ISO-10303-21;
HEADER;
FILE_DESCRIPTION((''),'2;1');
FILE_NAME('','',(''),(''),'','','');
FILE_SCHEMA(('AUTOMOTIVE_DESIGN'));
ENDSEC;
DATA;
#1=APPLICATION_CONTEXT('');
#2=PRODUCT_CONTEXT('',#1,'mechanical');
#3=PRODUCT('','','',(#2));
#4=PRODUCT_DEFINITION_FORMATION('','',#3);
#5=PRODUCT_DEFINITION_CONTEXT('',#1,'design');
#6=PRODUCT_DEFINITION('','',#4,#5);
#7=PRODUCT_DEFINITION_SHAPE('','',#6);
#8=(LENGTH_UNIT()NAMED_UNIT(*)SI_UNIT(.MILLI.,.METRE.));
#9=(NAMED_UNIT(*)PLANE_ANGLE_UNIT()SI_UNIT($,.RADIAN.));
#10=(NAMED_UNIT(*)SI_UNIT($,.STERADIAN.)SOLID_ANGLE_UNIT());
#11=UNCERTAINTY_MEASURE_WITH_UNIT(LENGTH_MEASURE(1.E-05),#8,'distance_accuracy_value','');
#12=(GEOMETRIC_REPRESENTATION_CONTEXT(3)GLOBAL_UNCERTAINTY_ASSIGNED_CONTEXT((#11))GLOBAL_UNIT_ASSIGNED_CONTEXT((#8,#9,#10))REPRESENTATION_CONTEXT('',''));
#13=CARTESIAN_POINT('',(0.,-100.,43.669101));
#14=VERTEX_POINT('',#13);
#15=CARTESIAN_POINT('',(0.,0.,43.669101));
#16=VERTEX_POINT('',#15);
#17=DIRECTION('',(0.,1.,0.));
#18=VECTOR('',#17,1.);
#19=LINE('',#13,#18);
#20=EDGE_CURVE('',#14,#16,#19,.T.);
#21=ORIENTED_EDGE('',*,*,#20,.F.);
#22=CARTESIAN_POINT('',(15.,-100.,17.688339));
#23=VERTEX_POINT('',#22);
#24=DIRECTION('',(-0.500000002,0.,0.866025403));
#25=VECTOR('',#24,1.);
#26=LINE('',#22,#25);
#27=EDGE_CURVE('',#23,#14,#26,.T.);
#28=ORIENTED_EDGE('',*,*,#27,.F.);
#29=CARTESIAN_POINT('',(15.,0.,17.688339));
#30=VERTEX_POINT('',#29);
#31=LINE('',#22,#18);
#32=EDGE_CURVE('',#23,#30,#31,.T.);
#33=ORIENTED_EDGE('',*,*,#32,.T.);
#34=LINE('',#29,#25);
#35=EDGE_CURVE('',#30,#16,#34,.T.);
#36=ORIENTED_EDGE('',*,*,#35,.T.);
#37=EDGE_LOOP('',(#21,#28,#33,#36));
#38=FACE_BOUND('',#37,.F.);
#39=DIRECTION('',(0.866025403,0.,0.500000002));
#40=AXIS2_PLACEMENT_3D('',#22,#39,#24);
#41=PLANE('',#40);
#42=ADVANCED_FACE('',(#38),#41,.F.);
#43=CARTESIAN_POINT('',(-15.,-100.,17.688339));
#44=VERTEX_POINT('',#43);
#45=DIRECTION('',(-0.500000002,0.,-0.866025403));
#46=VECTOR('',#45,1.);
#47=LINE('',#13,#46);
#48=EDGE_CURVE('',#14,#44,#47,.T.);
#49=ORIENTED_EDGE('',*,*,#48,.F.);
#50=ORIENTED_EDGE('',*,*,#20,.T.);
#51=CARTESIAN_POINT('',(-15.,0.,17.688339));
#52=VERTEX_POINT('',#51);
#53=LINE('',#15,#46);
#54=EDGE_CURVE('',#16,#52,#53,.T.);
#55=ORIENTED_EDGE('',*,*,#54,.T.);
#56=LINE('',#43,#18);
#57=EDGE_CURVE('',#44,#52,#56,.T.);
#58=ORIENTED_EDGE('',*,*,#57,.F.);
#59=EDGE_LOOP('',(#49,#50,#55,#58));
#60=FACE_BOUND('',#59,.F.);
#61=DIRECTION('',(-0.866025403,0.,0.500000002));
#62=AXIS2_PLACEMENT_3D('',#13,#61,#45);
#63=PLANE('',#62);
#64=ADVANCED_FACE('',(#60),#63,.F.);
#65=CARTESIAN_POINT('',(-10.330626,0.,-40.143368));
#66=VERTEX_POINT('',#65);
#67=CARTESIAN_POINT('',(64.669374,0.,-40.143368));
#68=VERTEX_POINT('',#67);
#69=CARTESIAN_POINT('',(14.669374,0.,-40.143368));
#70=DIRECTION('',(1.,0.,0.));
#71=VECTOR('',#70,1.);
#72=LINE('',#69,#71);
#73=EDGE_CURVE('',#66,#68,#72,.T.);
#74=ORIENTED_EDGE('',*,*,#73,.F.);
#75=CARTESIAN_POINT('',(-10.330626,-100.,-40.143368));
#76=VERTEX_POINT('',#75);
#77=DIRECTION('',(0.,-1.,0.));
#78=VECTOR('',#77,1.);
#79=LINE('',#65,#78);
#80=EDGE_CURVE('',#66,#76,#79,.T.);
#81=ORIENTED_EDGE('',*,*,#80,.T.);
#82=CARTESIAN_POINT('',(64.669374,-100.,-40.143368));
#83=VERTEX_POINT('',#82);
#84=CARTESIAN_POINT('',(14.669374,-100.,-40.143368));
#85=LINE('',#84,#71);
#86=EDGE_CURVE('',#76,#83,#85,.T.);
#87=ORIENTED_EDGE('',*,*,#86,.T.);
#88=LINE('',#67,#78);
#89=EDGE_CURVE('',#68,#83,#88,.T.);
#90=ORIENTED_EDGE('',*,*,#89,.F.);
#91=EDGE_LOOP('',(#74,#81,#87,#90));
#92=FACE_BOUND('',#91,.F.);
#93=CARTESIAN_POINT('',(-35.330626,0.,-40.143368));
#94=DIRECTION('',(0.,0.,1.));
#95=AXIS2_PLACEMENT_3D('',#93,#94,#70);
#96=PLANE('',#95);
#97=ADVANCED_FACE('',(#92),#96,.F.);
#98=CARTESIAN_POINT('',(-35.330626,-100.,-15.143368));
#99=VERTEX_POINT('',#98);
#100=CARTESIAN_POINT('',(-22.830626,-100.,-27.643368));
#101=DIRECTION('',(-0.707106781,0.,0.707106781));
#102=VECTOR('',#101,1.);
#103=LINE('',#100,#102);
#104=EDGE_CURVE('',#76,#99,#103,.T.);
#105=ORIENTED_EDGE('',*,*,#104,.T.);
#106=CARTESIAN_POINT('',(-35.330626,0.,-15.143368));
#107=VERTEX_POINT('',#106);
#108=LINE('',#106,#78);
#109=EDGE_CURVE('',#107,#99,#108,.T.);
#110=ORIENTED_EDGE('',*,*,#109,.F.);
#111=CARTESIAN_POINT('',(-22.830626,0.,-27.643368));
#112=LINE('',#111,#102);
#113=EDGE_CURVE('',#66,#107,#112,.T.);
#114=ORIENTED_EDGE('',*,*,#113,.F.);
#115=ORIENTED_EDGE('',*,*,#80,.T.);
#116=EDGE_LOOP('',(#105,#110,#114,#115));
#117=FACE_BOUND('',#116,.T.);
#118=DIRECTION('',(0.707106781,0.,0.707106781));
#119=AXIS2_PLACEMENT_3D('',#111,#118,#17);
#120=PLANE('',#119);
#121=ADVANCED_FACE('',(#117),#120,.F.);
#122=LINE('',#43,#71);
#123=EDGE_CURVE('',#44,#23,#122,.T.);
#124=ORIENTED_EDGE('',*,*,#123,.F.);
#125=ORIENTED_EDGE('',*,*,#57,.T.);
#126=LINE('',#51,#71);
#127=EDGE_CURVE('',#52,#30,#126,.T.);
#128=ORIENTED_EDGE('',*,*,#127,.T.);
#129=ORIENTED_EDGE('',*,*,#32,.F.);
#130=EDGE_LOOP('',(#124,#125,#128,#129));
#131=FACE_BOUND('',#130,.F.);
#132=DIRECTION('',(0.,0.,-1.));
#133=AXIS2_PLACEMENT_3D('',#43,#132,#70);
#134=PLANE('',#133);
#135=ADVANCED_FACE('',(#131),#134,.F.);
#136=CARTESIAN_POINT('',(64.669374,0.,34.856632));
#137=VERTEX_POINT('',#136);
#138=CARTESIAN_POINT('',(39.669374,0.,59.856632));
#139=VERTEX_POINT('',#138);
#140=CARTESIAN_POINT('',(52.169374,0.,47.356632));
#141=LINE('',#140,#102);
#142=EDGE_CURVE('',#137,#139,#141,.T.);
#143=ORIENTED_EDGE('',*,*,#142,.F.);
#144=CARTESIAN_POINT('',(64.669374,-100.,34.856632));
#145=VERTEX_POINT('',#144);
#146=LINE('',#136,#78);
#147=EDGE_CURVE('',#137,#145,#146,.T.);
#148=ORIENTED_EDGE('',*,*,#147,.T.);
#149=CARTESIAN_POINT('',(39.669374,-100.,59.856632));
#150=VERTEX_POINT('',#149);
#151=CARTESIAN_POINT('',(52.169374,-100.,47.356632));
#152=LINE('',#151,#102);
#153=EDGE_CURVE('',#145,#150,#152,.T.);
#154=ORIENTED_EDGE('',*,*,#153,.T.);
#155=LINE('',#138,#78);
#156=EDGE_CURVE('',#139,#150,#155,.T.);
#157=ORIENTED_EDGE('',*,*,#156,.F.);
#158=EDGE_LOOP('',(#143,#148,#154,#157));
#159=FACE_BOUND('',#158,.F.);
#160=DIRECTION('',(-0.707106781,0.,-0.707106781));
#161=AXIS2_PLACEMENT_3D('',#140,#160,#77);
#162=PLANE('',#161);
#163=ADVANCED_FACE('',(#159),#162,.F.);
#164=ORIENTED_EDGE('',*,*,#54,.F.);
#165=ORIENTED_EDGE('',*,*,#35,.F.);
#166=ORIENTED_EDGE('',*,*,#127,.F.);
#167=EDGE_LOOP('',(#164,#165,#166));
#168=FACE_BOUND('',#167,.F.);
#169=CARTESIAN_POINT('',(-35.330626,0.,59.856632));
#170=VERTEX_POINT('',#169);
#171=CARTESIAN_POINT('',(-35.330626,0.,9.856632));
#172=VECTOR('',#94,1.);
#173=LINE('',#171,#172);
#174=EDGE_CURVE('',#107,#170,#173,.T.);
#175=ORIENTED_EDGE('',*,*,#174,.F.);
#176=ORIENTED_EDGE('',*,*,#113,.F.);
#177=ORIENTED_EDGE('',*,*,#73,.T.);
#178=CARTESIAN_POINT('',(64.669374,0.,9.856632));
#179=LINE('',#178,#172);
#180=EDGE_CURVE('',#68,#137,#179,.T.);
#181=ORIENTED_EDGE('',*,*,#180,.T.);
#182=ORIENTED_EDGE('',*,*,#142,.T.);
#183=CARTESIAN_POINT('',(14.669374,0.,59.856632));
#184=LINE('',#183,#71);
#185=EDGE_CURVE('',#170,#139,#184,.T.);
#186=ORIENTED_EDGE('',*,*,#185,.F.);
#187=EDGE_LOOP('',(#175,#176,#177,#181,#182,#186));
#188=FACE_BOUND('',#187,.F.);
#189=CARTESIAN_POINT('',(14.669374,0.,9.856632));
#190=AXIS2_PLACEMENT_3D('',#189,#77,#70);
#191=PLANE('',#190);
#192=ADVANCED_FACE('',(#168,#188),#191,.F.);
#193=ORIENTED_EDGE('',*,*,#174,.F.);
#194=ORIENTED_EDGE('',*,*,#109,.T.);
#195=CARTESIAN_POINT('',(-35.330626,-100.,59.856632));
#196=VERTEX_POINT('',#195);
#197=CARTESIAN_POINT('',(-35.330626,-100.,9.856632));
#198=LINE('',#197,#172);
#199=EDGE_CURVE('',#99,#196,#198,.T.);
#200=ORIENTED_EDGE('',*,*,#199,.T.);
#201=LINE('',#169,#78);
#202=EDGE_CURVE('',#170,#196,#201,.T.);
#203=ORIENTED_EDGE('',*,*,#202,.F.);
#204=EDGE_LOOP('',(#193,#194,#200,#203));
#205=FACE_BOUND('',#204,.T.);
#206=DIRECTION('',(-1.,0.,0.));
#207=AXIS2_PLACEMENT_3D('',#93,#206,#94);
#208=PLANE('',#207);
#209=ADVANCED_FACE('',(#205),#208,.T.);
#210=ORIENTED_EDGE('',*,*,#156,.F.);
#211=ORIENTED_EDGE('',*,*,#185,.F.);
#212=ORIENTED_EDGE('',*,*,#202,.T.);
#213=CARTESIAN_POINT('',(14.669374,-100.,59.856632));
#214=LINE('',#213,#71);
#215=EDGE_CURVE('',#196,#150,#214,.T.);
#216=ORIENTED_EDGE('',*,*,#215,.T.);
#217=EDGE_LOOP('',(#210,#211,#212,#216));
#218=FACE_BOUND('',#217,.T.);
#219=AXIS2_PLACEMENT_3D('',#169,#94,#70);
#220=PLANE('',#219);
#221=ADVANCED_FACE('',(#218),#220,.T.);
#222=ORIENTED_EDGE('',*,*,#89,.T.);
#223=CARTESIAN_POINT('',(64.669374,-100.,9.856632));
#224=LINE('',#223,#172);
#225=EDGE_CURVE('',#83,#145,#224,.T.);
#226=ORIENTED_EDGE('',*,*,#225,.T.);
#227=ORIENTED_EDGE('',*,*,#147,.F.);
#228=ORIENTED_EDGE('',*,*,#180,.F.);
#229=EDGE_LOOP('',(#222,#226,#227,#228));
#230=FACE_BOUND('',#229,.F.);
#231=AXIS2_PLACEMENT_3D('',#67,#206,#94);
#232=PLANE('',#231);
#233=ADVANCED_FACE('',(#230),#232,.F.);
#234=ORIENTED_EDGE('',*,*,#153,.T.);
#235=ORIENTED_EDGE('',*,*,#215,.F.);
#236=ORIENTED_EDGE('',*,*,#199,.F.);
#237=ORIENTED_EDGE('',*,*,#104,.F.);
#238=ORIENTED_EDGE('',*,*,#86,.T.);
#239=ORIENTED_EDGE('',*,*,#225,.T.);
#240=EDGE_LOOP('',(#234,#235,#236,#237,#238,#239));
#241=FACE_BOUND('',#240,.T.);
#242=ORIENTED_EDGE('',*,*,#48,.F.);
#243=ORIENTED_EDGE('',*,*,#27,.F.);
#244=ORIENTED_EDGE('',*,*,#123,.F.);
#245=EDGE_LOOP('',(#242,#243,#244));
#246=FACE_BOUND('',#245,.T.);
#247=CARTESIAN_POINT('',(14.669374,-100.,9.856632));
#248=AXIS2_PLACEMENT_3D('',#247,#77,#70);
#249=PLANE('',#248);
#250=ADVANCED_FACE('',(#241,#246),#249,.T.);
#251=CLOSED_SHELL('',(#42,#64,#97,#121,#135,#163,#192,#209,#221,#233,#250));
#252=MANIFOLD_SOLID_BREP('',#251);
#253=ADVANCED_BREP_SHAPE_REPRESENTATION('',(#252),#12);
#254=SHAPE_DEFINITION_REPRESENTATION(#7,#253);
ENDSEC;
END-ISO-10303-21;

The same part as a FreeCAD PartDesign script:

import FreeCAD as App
import Part
import Sketcher

V = App.Vector
Q = App.Units.Quantity


def edges_at(feature, points):
    """Names of the edges that pass closest to the given points."""
    edges = feature.Shape.Edges
    near = lambda p: min(range(len(edges)), key=lambda i: edges[i].distToShape(Part.Vertex(*p))[0])
    return sorted({f"Edge{near(p) + 1}" for p in points})


def add_polygon(sketch, points):
    """Adds a closed chain of lines whose ends are joined by coincident constraints."""
    first, n = sketch.GeometryCount, len(points)
    for a, b in zip(points, points[1:] + points[:1]):
        sketch.addGeometry(Part.LineSegment(App.Vector(*a, 0), App.Vector(*b, 0)), False)
    for i in range(n):
        sketch.addConstraint(Sketcher.Constraint("Coincident", first + i, 2, first + (i + 1) % n, 1))

doc = App.newDocument("Part")
body = doc.addObject("PartDesign::Body", "Body")

# Sketch on XZ plane
sketch1 = doc.addObject("Sketcher::SketchObject", "Sketch")
body.addObject(sketch1)
sketch1.AttachmentSupport = (doc.XZ_Plane, [""])
sketch1.MapMode = "FlatFace"
add_polygon(sketch1, [(-35, 60), (-35, -40), (65, -40), (65, 60)])  # lines 0-3
sketch1.addConstraint([
    Sketcher.Constraint("Vertical", 0),
    Sketcher.Constraint("Horizontal", 1),
    Sketcher.Constraint("Vertical", 2),
    Sketcher.Constraint("Horizontal", 3),
    Sketcher.Constraint("Equal", 3, 0),
    Sketcher.Constraint("DistanceX", 1, 1, 1, 2, 100.0),
    Sketcher.Constraint("DistanceY", 0, 2, -1, 1, 40.143368),
    Sketcher.Constraint("DistanceX", 0, 2, -1, 1, 35.330626),
])
pad1 = doc.addObject("PartDesign::Pad", "Pad")
body.addObject(pad1)
pad1.Profile = sketch1
pad1.Length = 100
doc.recompute()

chamfer = doc.addObject("PartDesign::Chamfer", "Chamfer")
body.addObject(chamfer)
chamfer.Base = (pad1, edges_at(pad1, [(64.669, -50, 59.857)]))
chamfer.Size = 25
doc.recompute()

chamfer2 = doc.addObject("PartDesign::Chamfer", "Chamfer001")
body.addObject(chamfer2)
chamfer2.Base = (chamfer, edges_at(chamfer, [(-35.331, -50, -40.143)]))
chamfer2.Size = 25

# Sketch on XZ plane
sketch2 = doc.addObject("Sketcher::SketchObject", "Sketch001")
body.addObject(sketch2)
sketch2.AttachmentSupport = (doc.XZ_Plane, [""])
sketch2.MapMode = "FlatFace"
sketch2.AttachmentOffset = App.Placement(V(0, 0, 100), App.Rotation())
add_polygon(sketch2, [(15, 18), (0, 44), (-15, 18)])  # lines 0-2
sketch2.addConstraint([
    Sketcher.Constraint("Horizontal", 2),
    Sketcher.Constraint("PointOnObject", 0, 2, -2),
    Sketcher.Constraint("Equal", 0, 1),
    Sketcher.Constraint("DistanceX", 2, 1, 2, 2, 30.0),
    Sketcher.Constraint("Angle", 0, Q("120 deg")),
    Sketcher.Constraint("DistanceY", -1, 1, 0, 2, 43.669101),
])
pocket1 = doc.addObject("PartDesign::Pocket", "Pocket")
body.addObject(pocket1)
pocket1.Profile = sketch2
pocket1.Length = 100

doc.recompute()
